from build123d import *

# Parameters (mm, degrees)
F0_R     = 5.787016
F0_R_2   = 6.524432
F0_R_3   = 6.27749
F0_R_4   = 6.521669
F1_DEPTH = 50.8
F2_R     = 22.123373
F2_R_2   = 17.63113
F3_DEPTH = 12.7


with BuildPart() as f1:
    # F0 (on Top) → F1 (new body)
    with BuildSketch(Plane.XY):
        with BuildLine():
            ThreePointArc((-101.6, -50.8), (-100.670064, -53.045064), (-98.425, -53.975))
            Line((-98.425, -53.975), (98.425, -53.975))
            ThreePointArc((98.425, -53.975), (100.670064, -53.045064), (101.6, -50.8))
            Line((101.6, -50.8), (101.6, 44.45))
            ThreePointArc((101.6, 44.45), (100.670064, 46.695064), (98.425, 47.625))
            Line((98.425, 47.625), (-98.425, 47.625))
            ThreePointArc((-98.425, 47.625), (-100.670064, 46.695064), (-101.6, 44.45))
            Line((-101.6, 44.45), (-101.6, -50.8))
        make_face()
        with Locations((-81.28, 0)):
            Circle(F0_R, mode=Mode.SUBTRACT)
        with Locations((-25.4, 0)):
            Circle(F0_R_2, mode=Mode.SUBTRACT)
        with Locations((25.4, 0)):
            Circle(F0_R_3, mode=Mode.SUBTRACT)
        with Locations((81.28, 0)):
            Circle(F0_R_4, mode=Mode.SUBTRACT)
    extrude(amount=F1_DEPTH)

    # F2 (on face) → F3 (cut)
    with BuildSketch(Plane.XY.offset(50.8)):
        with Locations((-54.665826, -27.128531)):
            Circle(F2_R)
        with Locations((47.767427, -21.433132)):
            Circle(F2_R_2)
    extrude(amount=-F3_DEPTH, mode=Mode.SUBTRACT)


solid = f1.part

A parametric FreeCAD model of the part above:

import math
import FreeCAD as App
import Part
import Sketcher
Q = App.Units.Quantity

doc = App.newDocument("Part")
params = doc.addObject("Spreadsheet::Sheet", "Params")
for row, (alias, value) in enumerate([
    ("sketch1_radius", "0.125 in"),
    ("pad1_length", "2 in"),
    ("pocket1_length", "0.5 in"),
], start=1):
    params.set(f"A{row}", alias)
    params.set(f"B{row}", "=" + value)
    params.setAlias(f"B{row}", alias)

body = doc.addObject("PartDesign::Body", "Body")

# Sketch on XY plane
sketch1 = body.newObject("Sketcher::SketchObject", "Sketch")
sketch1.AttachmentSupport = (doc.getObject("XY_Plane"), [""])
sketch1.MapMode = "FlatFace"
sketch1.addGeometry([
    Part.ArcOfCircle(Part.Circle(App.Vector(-98.4, -50.8, 0), App.Vector(0, 0, 1), 3.2), math.radians(-180), math.radians(-90)),  # 0
    Part.LineSegment(App.Vector(-98.4, -54, 0), App.Vector(98.4, -54, 0)),  # 1
    Part.ArcOfCircle(Part.Circle(App.Vector(98.4, -50.8, 0), App.Vector(0, 0, 1), 3.2), math.radians(-90), math.radians(0)),  # 2
    Part.LineSegment(App.Vector(101.6, -50.8, 0), App.Vector(101.6, 44.5, 0)),  # 3
    Part.ArcOfCircle(Part.Circle(App.Vector(98.4, 44.4, 0), App.Vector(0, 0, 1), 3.2), math.radians(0), math.radians(90)),  # 4
    Part.LineSegment(App.Vector(98.4, 47.6, 0), App.Vector(-98.4, 47.6, 0)),  # 5
    Part.ArcOfCircle(Part.Circle(App.Vector(-98.4, 44.4, 0), App.Vector(0, 0, 1), 3.2), math.radians(90), math.radians(180)),  # 6
    Part.LineSegment(App.Vector(-101.6, 44.5, 0), App.Vector(-101.6, -50.8, 0)),  # 7
    Part.Circle(App.Vector(-81.3, 0, 0), App.Vector(0, 0, 1), 5.8),  # 8
    Part.Circle(App.Vector(-25.4, 0, 0), App.Vector(0, 0, 1), 6.5),  # 9
    Part.Circle(App.Vector(25.4, 0, 0), App.Vector(0, 0, 1), 6.3),  # 10
    Part.Circle(App.Vector(81.3, 0, 0), App.Vector(0, 0, 1), 6.5),  # 11
], False)
sketch1.addConstraint([
    Sketcher.Constraint("Tangent", 0, 2, 1, 1),
    Sketcher.Constraint("Tangent", 1, 2, 2, 1),
    Sketcher.Constraint("Tangent", 2, 2, 3, 1),
    Sketcher.Constraint("Tangent", 3, 2, 4, 1),
    Sketcher.Constraint("Tangent", 4, 2, 5, 1),
    Sketcher.Constraint("Tangent", 5, 2, 6, 1),
    Sketcher.Constraint("Tangent", 6, 2, 7, 1),
    Sketcher.Constraint("Tangent", 7, 2, 0, 1),
    Sketcher.Constraint("Horizontal", 1),
    Sketcher.Constraint("Vertical", 3),
    Sketcher.Constraint("Horizontal", 5),
    Sketcher.Constraint("Vertical", 7),
    Sketcher.Constraint("Equal", 0, 2),
    Sketcher.Constraint("Equal", 2, 4),
    Sketcher.Constraint("Equal", 4, 6),
    Sketcher.Constraint("Symmetric", 9, 3, 10, 3, -1, 1),
    Sketcher.Constraint("Symmetric", 8, 3, 11, 3, -1, 1),
    Sketcher.Constraint("PointOnObject", 8, 3, -1),
    Sketcher.Constraint("PointOnObject", 9, 3, -1),
    Sketcher.Constraint("DistanceY", 0, 3, -1, 1, Q("2 in")),
    Sketcher.Constraint("DistanceX", 9, 3, -1, 1, Q("1 in")),
    Sketcher.Constraint("DistanceX", -1, 1, 2, 2, Q("4 in")),
    Sketcher.Constraint("DistanceX", 6, 2, -1, 1, Q("4 in")),
    Sketcher.Constraint("Radius", 0, Q("0.125 in")),
    Sketcher.Constraint("DistanceY", 0, 2, 5, 2, Q("4 in")),
    Sketcher.Constraint("DistanceX", 8, 3, -1, 1, Q("3.2 in")),
    Sketcher.Constraint("Diameter", 10, Q("12.55498 mm")),
    Sketcher.Constraint("Diameter", 8, Q("11.574032 mm")),
    Sketcher.Constraint("Diameter", 9, Q("13.048864 mm")),
    Sketcher.Constraint("Diameter", 11, Q("13.043338 mm")),
])
sketch1.setExpression("Constraints[23]", "Params.sketch1_radius")
pad1 = body.newObject("PartDesign::Pad", "Pad")
pad1.Profile = sketch1
pad1.setExpression("Length", "Params.pad1_length")

# Sketch on XY plane
sketch2 = body.newObject("Sketcher::SketchObject", "Sketch001")
sketch2.AttachmentSupport = (doc.getObject("XY_Plane"), [""])
sketch2.MapMode = "FlatFace"
sketch2.AttachmentOffset = App.Placement(App.Vector(0, 0, 2 * 25.4), App.Rotation())
sketch2.addGeometry([
    Part.Circle(App.Vector(-55, -27, 0), App.Vector(0, 0, 1), 22),
    Part.Circle(App.Vector(48, -21, 0), App.Vector(0, 0, 1), 18),
], False)
sketch2.addConstraint([
    Sketcher.Constraint("Diameter", 1, Q("35.26226 mm")),
    Sketcher.Constraint("Diameter", 0, Q("44.246746 mm")),
    Sketcher.Constraint("DistanceY", 0, 3, 1, 3, Q("5.695399 mm")),
    Sketcher.Constraint("DistanceY", 0, 3, -1, 1, Q("27.128531 mm")),
    Sketcher.Constraint("DistanceX", 0, 3, -1, 1, Q("54.665826 mm")),
    Sketcher.Constraint("DistanceX", -1, 1, 1, 3, Q("47.767427 mm")),
])
pocket1 = body.newObject("PartDesign::Pocket", "Pocket")
pocket1.Profile = sketch2
pocket1.setExpression("Length", "Params.pocket1_length")

doc.recompute()
